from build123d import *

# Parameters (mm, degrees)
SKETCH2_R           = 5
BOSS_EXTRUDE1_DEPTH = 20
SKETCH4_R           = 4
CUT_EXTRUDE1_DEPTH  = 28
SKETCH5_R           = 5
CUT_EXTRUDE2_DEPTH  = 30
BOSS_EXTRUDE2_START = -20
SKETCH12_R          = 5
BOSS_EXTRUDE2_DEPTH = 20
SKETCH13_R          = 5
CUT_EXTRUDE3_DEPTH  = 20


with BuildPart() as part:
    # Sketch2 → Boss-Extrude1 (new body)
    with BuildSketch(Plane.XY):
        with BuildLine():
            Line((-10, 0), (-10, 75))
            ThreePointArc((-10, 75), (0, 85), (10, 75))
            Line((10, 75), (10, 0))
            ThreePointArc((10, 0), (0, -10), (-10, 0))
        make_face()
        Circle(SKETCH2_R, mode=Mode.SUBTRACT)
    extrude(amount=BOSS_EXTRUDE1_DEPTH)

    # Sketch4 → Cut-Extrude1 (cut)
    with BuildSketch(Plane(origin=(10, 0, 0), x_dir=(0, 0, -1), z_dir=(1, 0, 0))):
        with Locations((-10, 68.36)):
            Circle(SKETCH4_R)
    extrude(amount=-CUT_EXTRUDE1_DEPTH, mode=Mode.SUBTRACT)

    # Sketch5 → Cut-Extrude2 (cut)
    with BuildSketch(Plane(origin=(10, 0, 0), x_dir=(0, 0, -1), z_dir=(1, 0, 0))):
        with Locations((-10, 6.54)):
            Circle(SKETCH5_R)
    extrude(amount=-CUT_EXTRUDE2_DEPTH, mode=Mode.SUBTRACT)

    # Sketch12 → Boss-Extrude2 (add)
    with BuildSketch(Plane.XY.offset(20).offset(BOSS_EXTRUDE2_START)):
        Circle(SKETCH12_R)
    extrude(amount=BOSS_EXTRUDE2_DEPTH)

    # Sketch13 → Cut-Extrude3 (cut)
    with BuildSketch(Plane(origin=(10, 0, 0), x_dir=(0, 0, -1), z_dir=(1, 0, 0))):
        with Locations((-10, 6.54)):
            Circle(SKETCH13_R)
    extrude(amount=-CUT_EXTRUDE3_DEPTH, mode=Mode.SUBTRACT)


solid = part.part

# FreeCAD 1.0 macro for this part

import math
import FreeCAD as App
import Part
import Sketcher

V = App.Vector
Q = App.Units.Quantity

doc = App.newDocument("Part")
body = doc.addObject("PartDesign::Body", "Body")

# Sketch on XY plane
sketch1 = doc.addObject("Sketcher::SketchObject", "Sketch")
body.addObject(sketch1)
sketch1.AttachmentSupport = (doc.XY_Plane, [""])
sketch1.MapMode = "FlatFace"
sketch1.addGeometry(Part.LineSegment(V(-10, 75, 0), V(-10, 0, 0)), False)
sketch1.addGeometry(Part.ArcOfCircle(Part.Circle(V(0, 0, 0), V(0, 0, 1), 10), math.radians(180), math.radians(360)), False)
sketch1.addGeometry(Part.LineSegment(V(10, 0, 0), V(10, 75, 0)), False)
sketch1.addGeometry(Part.ArcOfCircle(Part.Circle(V(0, 75, 0), V(0, 0, 1), 10), math.radians(0), math.radians(180)), False)
sketch1.addGeometry(Part.Circle(V(0, 0, 0), V(0, 0, 1), 5), False)
sketch1.addConstraint(Sketcher.Constraint("Tangent", 0, 2, 1, 1))
sketch1.addConstraint(Sketcher.Constraint("Tangent", 1, 2, 2, 1))
sketch1.addConstraint(Sketcher.Constraint("Tangent", 2, 2, 3, 1))
sketch1.addConstraint(Sketcher.Constraint("Tangent", 3, 2, 0, 1))
sketch1.addConstraint(Sketcher.Constraint("Vertical", 0))
sketch1.addConstraint(Sketcher.Constraint("Vertical", 2))
sketch1.addConstraint(Sketcher.Constraint("Coincident", 1, 3, -1, 1))
sketch1.addConstraint(Sketcher.Constraint("Coincident", 4, 3, -1, 1))
sketch1.addConstraint(Sketcher.Constraint("Diameter", 4, Q("10 mm")))
sketch1.addConstraint(Sketcher.Constraint("Radius", 1, Q("10 mm")))
sketch1.addConstraint(Sketcher.Constraint("DistanceY", 0, 2, 0, 1, Q("75 mm")))
pad1 = doc.addObject("PartDesign::Pad", "Pad")
body.addObject(pad1)
pad1.Profile = sketch1
pad1.Length = 20

# Sketch on YZ plane
sketch2 = doc.addObject("Sketcher::SketchObject", "Sketch001")
body.addObject(sketch2)
sketch2.AttachmentSupport = (doc.YZ_Plane, [""])
sketch2.MapMode = "FlatFace"
sketch2.AttachmentOffset = App.Placement(V(0, 0, 10), App.Rotation())
sketch2.addGeometry(Part.Circle(V(68.36, 10, 0), V(0, 0, 1), 4), False)
sketch2.addConstraint(Sketcher.Constraint("Diameter", 0, Q("8 mm")))
sketch2.addConstraint(Sketcher.Constraint("DistanceY", -1, 1, 0, 3, Q("10 mm")))
sketch2.addConstraint(Sketcher.Constraint("DistanceX", -1, 1, 0, 3, Q("68.36 mm")))
pocket1 = doc.addObject("PartDesign::Pocket", "Pocket")
body.addObject(pocket1)
pocket1.Profile = sketch2
pocket1.Length = 28

# Sketch on YZ plane
sketch3 = doc.addObject("Sketcher::SketchObject", "Sketch002")
body.addObject(sketch3)
sketch3.AttachmentSupport = (doc.YZ_Plane, [""])
sketch3.MapMode = "FlatFace"
sketch3.AttachmentOffset = App.Placement(V(0, 0, 10), App.Rotation())
sketch3.addGeometry(Part.Circle(V(6.54, 10, 0), V(0, 0, 1), 5), False)
sketch3.addConstraint(Sketcher.Constraint("Diameter", 0, Q("10 mm")))
sketch3.addConstraint(Sketcher.Constraint("DistanceY", -1, 1, 0, 3, Q("10 mm")))
sketch3.addConstraint(Sketcher.Constraint("DistanceX", -1, 1, 0, 3, Q("6.54 mm")))
pocket2 = doc.addObject("PartDesign::Pocket", "Pocket001")
body.addObject(pocket2)
pocket2.Profile = sketch3
pocket2.Length = 30

# Sketch on XY plane
sketch4 = doc.addObject("Sketcher::SketchObject", "Sketch003")
body.addObject(sketch4)
sketch4.AttachmentSupport = (doc.XY_Plane, [""])
sketch4.MapMode = "FlatFace"
sketch4.addGeometry(Part.Circle(V(0, 0, 0), V(0, 0, 1), 5), False)
sketch4.addConstraint(Sketcher.Constraint("Coincident", 0, 3, -1, 1))
sketch4.addConstraint(Sketcher.Constraint("Diameter", 0, Q("10 mm")))
pad2 = doc.addObject("PartDesign::Pad", "Pad001")
body.addObject(pad2)
pad2.Profile = sketch4
pad2.Length = 20

# Sketch on YZ plane
sketch5 = doc.addObject("Sketcher::SketchObject", "Sketch004")
body.addObject(sketch5)
sketch5.AttachmentSupport = (doc.YZ_Plane, [""])
sketch5.MapMode = "FlatFace"
sketch5.AttachmentOffset = App.Placement(V(0, 0, 10), App.Rotation())
sketch5.addGeometry(Part.Circle(V(6.54, 10, 0), V(0, 0, 1), 5), False)
sketch5.addConstraint(Sketcher.Constraint("Diameter", 0, Q("10 mm")))
sketch5.addConstraint(Sketcher.Constraint("DistanceY", -1, 1, 0, 3, Q("10 mm")))
sketch5.addConstraint(Sketcher.Constraint("DistanceX", -1, 1, 0, 3, Q("6.54 mm")))
pocket3 = doc.addObject("PartDesign::Pocket", "Pocket002")
body.addObject(pocket3)
pocket3.Profile = sketch5
pocket3.Length = 20

doc.recompute()
